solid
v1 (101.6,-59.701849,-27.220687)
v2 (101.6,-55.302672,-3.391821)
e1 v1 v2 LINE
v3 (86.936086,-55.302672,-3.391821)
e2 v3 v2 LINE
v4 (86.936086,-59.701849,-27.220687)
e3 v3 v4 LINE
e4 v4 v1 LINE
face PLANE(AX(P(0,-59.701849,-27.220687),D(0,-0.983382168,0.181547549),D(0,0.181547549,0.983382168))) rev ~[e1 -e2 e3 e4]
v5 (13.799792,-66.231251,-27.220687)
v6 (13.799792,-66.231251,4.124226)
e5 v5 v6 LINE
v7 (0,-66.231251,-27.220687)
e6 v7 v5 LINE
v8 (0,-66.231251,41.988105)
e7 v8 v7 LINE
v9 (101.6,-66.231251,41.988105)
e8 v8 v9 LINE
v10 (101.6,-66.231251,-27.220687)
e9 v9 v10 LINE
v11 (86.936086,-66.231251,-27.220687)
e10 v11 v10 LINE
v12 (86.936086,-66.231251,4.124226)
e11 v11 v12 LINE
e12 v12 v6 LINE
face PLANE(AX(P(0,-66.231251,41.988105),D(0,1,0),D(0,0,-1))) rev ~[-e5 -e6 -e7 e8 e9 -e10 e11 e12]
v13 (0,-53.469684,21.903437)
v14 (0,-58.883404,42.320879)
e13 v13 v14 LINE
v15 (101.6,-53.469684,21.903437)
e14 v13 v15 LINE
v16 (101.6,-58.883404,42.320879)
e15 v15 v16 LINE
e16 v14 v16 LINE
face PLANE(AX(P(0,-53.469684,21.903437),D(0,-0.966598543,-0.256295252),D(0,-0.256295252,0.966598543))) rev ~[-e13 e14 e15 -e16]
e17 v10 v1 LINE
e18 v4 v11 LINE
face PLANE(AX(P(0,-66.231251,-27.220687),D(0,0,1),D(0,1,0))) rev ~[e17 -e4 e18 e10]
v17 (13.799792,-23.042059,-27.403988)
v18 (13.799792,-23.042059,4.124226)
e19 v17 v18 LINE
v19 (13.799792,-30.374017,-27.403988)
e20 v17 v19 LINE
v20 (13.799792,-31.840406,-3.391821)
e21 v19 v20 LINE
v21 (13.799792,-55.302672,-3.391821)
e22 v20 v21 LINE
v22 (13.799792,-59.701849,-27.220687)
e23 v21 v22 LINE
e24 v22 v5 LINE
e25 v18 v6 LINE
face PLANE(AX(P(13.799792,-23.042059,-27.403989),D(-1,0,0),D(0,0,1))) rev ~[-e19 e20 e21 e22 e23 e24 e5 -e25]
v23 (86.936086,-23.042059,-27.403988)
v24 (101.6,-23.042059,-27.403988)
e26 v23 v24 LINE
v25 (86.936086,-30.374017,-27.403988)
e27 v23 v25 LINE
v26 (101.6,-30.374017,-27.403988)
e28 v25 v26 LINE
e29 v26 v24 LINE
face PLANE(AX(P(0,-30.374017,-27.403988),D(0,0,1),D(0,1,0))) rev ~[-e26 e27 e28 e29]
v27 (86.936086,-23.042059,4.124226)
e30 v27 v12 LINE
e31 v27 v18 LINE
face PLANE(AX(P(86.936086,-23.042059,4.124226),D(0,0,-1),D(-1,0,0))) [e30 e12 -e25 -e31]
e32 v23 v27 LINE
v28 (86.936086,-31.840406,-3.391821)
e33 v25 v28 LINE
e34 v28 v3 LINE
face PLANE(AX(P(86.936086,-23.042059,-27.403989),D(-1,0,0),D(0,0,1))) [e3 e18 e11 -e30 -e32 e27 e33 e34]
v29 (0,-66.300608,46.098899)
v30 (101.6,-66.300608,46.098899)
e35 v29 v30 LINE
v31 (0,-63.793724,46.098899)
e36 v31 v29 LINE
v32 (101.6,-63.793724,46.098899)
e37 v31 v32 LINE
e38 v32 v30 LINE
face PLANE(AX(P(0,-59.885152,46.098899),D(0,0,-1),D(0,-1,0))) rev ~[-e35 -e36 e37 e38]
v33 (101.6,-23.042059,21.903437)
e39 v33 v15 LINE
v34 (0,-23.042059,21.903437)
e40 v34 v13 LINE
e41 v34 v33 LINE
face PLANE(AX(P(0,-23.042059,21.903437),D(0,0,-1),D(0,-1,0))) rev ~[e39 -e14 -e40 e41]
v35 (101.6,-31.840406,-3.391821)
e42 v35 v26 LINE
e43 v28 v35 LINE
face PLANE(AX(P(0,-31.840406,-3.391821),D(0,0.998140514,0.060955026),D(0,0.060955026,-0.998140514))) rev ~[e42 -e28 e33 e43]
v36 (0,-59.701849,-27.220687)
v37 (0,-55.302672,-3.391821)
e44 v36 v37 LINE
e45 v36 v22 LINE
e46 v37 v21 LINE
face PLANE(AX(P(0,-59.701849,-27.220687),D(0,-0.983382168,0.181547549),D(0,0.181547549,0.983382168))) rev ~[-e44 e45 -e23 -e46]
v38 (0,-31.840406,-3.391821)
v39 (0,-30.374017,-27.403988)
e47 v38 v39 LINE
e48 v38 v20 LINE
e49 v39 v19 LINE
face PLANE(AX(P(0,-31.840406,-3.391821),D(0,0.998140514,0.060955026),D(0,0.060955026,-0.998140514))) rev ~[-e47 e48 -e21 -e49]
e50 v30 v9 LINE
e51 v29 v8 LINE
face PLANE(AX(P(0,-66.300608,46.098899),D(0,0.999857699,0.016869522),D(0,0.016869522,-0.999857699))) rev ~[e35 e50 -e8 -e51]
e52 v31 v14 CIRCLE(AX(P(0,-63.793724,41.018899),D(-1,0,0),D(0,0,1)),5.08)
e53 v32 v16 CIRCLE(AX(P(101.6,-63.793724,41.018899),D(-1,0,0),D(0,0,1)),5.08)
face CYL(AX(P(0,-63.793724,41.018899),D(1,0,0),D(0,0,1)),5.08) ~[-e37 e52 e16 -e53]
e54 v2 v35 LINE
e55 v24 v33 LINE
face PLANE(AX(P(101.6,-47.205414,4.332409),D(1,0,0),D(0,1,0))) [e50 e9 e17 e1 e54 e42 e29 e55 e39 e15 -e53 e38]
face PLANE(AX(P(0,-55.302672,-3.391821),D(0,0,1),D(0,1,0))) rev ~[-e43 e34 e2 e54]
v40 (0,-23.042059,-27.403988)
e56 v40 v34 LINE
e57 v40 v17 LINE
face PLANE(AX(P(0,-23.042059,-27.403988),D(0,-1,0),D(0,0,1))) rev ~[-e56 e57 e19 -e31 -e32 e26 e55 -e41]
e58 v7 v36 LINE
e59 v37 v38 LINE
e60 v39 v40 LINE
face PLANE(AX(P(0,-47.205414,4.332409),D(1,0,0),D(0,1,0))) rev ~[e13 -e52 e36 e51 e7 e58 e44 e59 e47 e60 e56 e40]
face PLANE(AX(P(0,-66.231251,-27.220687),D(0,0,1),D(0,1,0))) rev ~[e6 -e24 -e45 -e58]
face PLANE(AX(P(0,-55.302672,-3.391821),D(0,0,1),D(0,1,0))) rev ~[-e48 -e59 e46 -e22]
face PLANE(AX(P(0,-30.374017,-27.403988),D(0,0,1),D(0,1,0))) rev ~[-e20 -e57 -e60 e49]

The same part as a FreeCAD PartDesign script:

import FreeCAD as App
import Part
import Sketcher


def edges_at(feature, points):
    """Names of the edges that pass closest to the given points."""
    edges = feature.Shape.Edges
    near = lambda p: min(range(len(edges)), key=lambda i: edges[i].distToShape(Part.Vertex(*p))[0])
    return sorted({f"Edge{near(p) + 1}" for p in points})

doc = App.newDocument("Part")
params = doc.addObject("Spreadsheet::Sheet", "Params")
for row, (alias, value) in enumerate([
    ("pad1_length", "4 in"),
    ("fillet_radius", "0.2 in"),
], start=1):
    params.set(f"A{row}", alias)
    params.set(f"B{row}", "=" + value)
    params.setAlias(f"B{row}", alias)

body = doc.addObject("PartDesign::Body", "Body")

# Sketch on YZ plane
sketch1 = body.newObject("Sketcher::SketchObject", "Sketch")
sketch1.AttachmentSupport = (doc.getObject("YZ_Plane"), [""])
sketch1.MapMode = "FlatFace"
sketch1.addGeometry(Part.LineSegment(App.Vector(-66.300608, 46.098899, 0), App.Vector(-66.231251, 41.988105, 0)), False)
sketch1.addGeometry(Part.LineSegment(App.Vector(-66.231251, 41.988105, 0), App.Vector(-66.231251, -27.220687, 0)), False)
sketch1.addGeometry(Part.LineSegment(App.Vector(-66.231251, -27.220687, 0), App.Vector(-59.701849, -27.220687, 0)), False)
sketch1.addGeometry(Part.LineSegment(App.Vector(-59.701849, -27.220687, 0), App.Vector(-55.302672, -3.391821, 0)), False)
sketch1.addGeometry(Part.LineSegment(App.Vector(-55.302672, -3.391821, 0), App.Vector(-31.840406, -3.391821, 0)), False)
sketch1.addGeometry(Part.LineSegment(App.Vector(-31.840406, -3.391821, 0), App.Vector(-30.374017, -27.403988, 0)), False)
sketch1.addGeometry(Part.LineSegment(App.Vector(-30.374017, -27.403988, 0), App.Vector(-23.042059, -27.403988, 0)), False)
sketch1.addGeometry(Part.LineSegment(App.Vector(-23.042059, -27.403988, 0), App.Vector(-23.042059, 21.903437, 0)), False)
sketch1.addGeometry(Part.LineSegment(App.Vector(-23.042059, 21.903437, 0), App.Vector(-53.469684, 21.903437, 0)), False)
sketch1.addGeometry(Part.LineSegment(App.Vector(-53.469684, 21.903437, 0), App.Vector(-59.885152, 46.098899, 0)), False)
sketch1.addGeometry(Part.LineSegment(App.Vector(-59.885152, 46.098899, 0), App.Vector(-66.300608, 46.098899, 0)), False)
sketch1.addConstraint(Sketcher.Constraint("Coincident", 0, 2, 1, 1))
sketch1.addConstraint(Sketcher.Constraint("Coincident", 1, 2, 2, 1))
sketch1.addConstraint(Sketcher.Constraint("Coincident", 2, 2, 3, 1))
sketch1.addConstraint(Sketcher.Constraint("Coincident", 3, 2, 4, 1))
sketch1.addConstraint(Sketcher.Constraint("Coincident", 4, 2, 5, 1))
sketch1.addConstraint(Sketcher.Constraint("Coincident", 5, 2, 6, 1))
sketch1.addConstraint(Sketcher.Constraint("Coincident", 6, 2, 7, 1))
sketch1.addConstraint(Sketcher.Constraint("Coincident", 7, 2, 8, 1))
sketch1.addConstraint(Sketcher.Constraint("Coincident", 8, 2, 9, 1))
sketch1.addConstraint(Sketcher.Constraint("Coincident", 9, 2, 10, 1))
sketch1.addConstraint(Sketcher.Constraint("Coincident", 10, 2, 0, 1))
sketch1.addConstraint(Sketcher.Constraint("Vertical", 1))
sketch1.addConstraint(Sketcher.Constraint("Horizontal", 2))
sketch1.addConstraint(Sketcher.Constraint("Horizontal", 4))
sketch1.addConstraint(Sketcher.Constraint("Horizontal", 6))
sketch1.addConstraint(Sketcher.Constraint("Vertical", 7))
sketch1.addConstraint(Sketcher.Constraint("Horizontal", 8))
sketch1.addConstraint(Sketcher.Constraint("Horizontal", 10))
sketch1.addConstraint(Sketcher.Constraint("DistanceX", 2, 1, 2, 2, 6.529402))
sketch1.addConstraint(Sketcher.Constraint("Distance", 5, 24.0569))
sketch1.addConstraint(Sketcher.Constraint("DistanceX", 6, 1, 6, 2, 7.331958))
sketch1.addConstraint(Sketcher.Constraint("DistanceY", -1, 1, 9, 2, 46.098899))
sketch1.addConstraint(Sketcher.Constraint("DistanceY", 5, 2, 2, 2, 0.183301))
sketch1.addConstraint(Sketcher.Constraint("DistanceX", 0, 2, 9, 2, 6.346099))
sketch1.addConstraint(Sketcher.Constraint("Distance", 0, 4.111379))
sketch1.addConstraint(Sketcher.Constraint("Distance", 3, 24.231542))
sketch1.addConstraint(Sketcher.Constraint("DistanceX", 4, 1, 4, 2, 23.462266))
sketch1.addConstraint(Sketcher.Constraint("DistanceX", 8, 2, 8, 1, 30.427625))
sketch1.addConstraint(Sketcher.Constraint("DistanceX", 10, 2, 10, 1, 6.415456))
sketch1.addConstraint(Sketcher.Constraint("DistanceY", 1, 2, 1, 1, 69.208792))
sketch1.addConstraint(Sketcher.Constraint("DistanceY", 7, 1, 7, 2, 49.307425))
sketch1.addConstraint(Sketcher.Constraint("DistanceX", 0, 2, -1, 1, 66.231251))
sketch1.addConstraint(Sketcher.Constraint("DistanceY", 3, 2, -1, 1, 3.391821))
pad1 = body.newObject("PartDesign::Pad", "Pad")
pad1.Profile = sketch1
pad1.setExpression("Length", "Params.pad1_length")

# Sketch on XZ plane
sketch2 = body.newObject("Sketcher::SketchObject", "Sketch001")
sketch2.AttachmentSupport = (doc.getObject("XZ_Plane"), [""])
sketch2.MapMode = "FlatFace"
sketch2.AttachmentOffset = App.Placement(App.Vector(0, 0, 23.042059), App.Rotation())
sketch2.addGeometry(Part.LineSegment(App.Vector(86.936086, 4.124226, 0), App.Vector(86.936086, -27.403989, 0)), False)
sketch2.addGeometry(Part.LineSegment(App.Vector(86.936086, -27.403989, 0), App.Vector(13.799792, -27.403989, 0)), False)
sketch2.addGeometry(Part.LineSegment(App.Vector(13.799792, -27.403989, 0), App.Vector(13.799792, 4.124226, 0)), False)
sketch2.addGeometry(Part.LineSegment(App.Vector(13.799792, 4.124226, 0), App.Vector(86.936086, 4.124226, 0)), False)
sketch2.addConstraint(Sketcher.Constraint("Coincident", 0, 2, 1, 1))
sketch2.addConstraint(Sketcher.Constraint("Coincident", 1, 2, 2, 1))
sketch2.addConstraint(Sketcher.Constraint("Coincident", 2, 2, 3, 1))
sketch2.addConstraint(Sketcher.Constraint("Coincident", 3, 2, 0, 1))
sketch2.addConstraint(Sketcher.Constraint("Vertical", 0))
sketch2.addConstraint(Sketcher.Constraint("Horizontal", 1))
sketch2.addConstraint(Sketcher.Constraint("Vertical", 2))
sketch2.addConstraint(Sketcher.Constraint("Horizontal", 3))
sketch2.addConstraint(Sketcher.Constraint("DistanceX", 1, 2, 1, 1, 73.136294))
sketch2.addConstraint(Sketcher.Constraint("DistanceY", 0, 2, 0, 1, 31.528215))
sketch2.addConstraint(Sketcher.Constraint("DistanceY", 0, 2, -1, 1, 27.403989))
sketch2.addConstraint(Sketcher.Constraint("DistanceX", -1, 1, 0, 2, 86.936086))
pocket1 = body.newObject("PartDesign::Pocket", "Pocket")
pocket1.Profile = sketch2
pocket1.Type = "ThroughAll"
pocket1.Reversed = True
doc.recompute()

fillet = body.newObject("PartDesign::Fillet", "Fillet")
fillet.Base = (pocket1, edges_at(pocket1, [(50.8, -59.885, 46.099)]))
fillet.setExpression("Radius", "Params.fillet_radius")

doc.recompute()
